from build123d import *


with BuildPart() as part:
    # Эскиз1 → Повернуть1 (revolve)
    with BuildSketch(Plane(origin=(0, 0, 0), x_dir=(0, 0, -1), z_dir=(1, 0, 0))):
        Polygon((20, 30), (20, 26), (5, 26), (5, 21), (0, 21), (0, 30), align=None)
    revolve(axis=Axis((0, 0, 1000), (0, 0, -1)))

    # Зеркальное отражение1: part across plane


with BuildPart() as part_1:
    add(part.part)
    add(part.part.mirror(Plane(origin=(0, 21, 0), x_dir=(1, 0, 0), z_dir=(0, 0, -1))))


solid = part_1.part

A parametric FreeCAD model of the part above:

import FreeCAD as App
import Part
import Sketcher

V = App.Vector
Q = App.Units.Quantity


def add_polygon(sketch, points):
    """Adds a closed chain of lines whose ends are joined by coincident constraints."""
    first, n = sketch.GeometryCount, len(points)
    for a, b in zip(points, points[1:] + points[:1]):
        sketch.addGeometry(Part.LineSegment(App.Vector(*a, 0), App.Vector(*b, 0)), False)
    for i in range(n):
        sketch.addConstraint(Sketcher.Constraint("Coincident", first + i, 2, first + (i + 1) % n, 1))

doc = App.newDocument("Part")
body = doc.addObject("PartDesign::Body", "Body")

sketch1 = body.newObject("Sketcher::SketchObject", "Sketch")
sketch1.AttachmentSupport = (doc.getObject("YZ_Plane"), [""])
sketch1.MapMode = "FlatFace"
add_polygon(sketch1, [(26, -20), (30, -20), (30, 0), (21, 0), (21, -5), (26, -5)])
sketch1.addConstraint([
    Sketcher.Constraint("Horizontal", 0),
    Sketcher.Constraint("Vertical", 1),
    Sketcher.Constraint("Horizontal", 2),
    Sketcher.Constraint("Vertical", 3),
    Sketcher.Constraint("Horizontal", 4),
    Sketcher.Constraint("Vertical", 5),
    Sketcher.Constraint("PointOnObject", 1, 2, -1),
    Sketcher.Constraint("Equal", 4, 3),
    Sketcher.Constraint("DistanceX", 0, 1, 0, 2, Q("4 mm")),
    Sketcher.Constraint("DistanceX", 2, 2, 2, 1, Q("9 mm")),
    Sketcher.Constraint("DistanceY", 1, 1, 1, 2, Q("20 mm")),
    Sketcher.Constraint("DistanceX", -1, 1, 0, 2, Q("30 mm")),
])
revolution = body.newObject("PartDesign::Revolution", "Revolution")
revolution.Profile = sketch1
revolution.ReferenceAxis = (sketch1, ["V_Axis"])
revolution.Angle = 360
body2 = doc.addObject("PartDesign::Body", "Body001")
doc.recompute()

body2.BaseFeature = body
doc.recompute()

mirroring = doc.addObject("Part::Mirroring", "Mirroring")
mirroring.Source = body
mirroring.Base = V(0, 21, 0)
mirroring.Normal = V(0, 0, -1)
body3 = doc.addObject("PartDesign::Body", "Body002")
body3.BaseFeature = mirroring
boolean = body2.newObject("PartDesign::Boolean", "Boolean")
boolean.Type = "Fuse"
boolean.addObjects([body3])
doc.recompute()
mirroring.Visibility = False

doc.recompute()
